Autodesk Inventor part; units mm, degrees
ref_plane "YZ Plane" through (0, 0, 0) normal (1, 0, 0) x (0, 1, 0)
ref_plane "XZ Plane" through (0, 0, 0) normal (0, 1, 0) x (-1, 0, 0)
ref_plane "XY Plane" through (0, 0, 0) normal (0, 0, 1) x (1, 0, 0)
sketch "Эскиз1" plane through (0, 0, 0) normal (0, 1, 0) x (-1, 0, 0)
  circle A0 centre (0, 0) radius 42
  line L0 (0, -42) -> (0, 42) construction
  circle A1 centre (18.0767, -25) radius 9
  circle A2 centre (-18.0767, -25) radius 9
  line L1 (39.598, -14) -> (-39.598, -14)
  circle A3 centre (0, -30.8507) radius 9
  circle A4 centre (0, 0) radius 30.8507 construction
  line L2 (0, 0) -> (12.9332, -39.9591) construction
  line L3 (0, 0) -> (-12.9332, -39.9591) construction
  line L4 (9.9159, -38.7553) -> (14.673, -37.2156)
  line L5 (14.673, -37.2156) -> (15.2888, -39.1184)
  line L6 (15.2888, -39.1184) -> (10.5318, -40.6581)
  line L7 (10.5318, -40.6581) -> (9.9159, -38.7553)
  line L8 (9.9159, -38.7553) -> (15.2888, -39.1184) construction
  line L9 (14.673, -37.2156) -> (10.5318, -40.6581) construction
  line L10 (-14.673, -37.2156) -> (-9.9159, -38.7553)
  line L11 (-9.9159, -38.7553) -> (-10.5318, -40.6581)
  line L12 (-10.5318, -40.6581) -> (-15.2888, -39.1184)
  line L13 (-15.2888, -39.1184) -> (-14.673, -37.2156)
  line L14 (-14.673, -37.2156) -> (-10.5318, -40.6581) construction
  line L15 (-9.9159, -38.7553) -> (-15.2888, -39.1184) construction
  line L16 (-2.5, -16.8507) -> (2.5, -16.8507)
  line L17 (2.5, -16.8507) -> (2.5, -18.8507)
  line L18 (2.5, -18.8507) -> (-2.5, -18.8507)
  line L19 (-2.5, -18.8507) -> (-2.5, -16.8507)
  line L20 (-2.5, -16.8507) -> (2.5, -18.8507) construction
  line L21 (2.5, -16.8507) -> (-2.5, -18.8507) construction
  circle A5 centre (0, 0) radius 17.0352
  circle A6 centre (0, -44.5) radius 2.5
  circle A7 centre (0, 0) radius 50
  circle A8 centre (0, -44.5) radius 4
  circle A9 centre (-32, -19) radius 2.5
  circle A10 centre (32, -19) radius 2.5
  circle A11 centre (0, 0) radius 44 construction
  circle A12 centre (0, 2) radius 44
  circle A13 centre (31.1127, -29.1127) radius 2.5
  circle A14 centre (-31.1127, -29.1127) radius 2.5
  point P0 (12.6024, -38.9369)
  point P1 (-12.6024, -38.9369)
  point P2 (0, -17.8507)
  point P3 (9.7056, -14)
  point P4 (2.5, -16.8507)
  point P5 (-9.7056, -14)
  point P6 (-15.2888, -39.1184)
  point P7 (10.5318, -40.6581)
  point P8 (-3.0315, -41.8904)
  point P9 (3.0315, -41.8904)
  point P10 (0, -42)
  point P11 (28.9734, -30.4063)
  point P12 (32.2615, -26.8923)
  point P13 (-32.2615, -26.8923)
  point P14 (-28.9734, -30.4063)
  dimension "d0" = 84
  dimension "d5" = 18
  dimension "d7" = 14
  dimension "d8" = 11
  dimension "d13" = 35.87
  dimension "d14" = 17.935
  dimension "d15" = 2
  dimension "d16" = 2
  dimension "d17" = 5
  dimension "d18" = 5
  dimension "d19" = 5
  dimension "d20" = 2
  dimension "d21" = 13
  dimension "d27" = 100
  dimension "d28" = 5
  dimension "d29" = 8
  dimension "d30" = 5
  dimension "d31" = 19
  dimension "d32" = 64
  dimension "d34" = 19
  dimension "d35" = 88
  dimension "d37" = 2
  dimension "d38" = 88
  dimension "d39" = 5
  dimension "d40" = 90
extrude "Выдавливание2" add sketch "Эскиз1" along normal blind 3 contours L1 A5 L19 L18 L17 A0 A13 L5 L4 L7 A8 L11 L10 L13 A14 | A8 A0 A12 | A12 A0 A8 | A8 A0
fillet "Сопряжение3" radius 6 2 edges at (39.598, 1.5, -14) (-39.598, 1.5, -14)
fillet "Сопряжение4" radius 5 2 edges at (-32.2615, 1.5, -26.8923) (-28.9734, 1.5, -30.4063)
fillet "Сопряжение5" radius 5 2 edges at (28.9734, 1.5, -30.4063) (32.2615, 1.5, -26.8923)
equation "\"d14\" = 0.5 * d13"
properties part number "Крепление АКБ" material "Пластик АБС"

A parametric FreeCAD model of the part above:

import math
import FreeCAD as App
import Part
import Sketcher


def edges_at(feature, points):
    """Names of the edges that pass closest to the given points."""
    edges = feature.Shape.Edges
    near = lambda p: min(range(len(edges)), key=lambda i: edges[i].distToShape(Part.Vertex(*p))[0])
    return sorted({f"Edge{near(p) + 1}" for p in points})

doc = App.newDocument("Part")
body = doc.addObject("PartDesign::Body", "Body")

# Sketch on XZ plane
sketch1 = body.newObject("Sketcher::SketchObject", "Sketch")
sketch1.AttachmentSupport = (doc.getObject("XZ_Plane"), [""])
sketch1.MapMode = "FlatFace"
sketch1.addGeometry([
    Part.LineSegment(App.Vector(9.706, -14, 0), App.Vector(39.598, -14, 0)),  # 0
    Part.ArcOfCircle(Part.Circle(App.Vector(0, 0, 0), App.Vector(0, 0, 1), 42), math.radians(-40), math.radians(-19)),  # 1
    Part.ArcOfCircle(Part.Circle(App.Vector(31.113, -29.113, 0), App.Vector(0, 0, 1), 2.5), math.radians(63), math.radians(211)),  # 2
    Part.ArcOfCircle(Part.Circle(App.Vector(0, 0, 0), App.Vector(0, 0, 1), 42), math.radians(-69), math.radians(-46)),  # 3
    Part.LineSegment(App.Vector(15.289, -39.118, 0), App.Vector(14.673, -37.216, 0)),  # 4
    Part.LineSegment(App.Vector(14.673, -37.216, 0), App.Vector(9.916, -38.755, 0)),  # 5
    Part.LineSegment(App.Vector(9.916, -38.755, 0), App.Vector(10.532, -40.658, 0)),  # 6
    Part.ArcOfCircle(Part.Circle(App.Vector(0, 0, 0), App.Vector(0, 0, 1), 42), math.radians(-85.86), math.radians(-75.48)),  # 7
    Part.ArcOfCircle(Part.Circle(App.Vector(0, -44.5, 0), App.Vector(0, 0, 1), 4), math.radians(40.63), math.radians(40.72)),  # 8
    Part.ArcOfCircle(Part.Circle(App.Vector(0, 2, 0), App.Vector(0, 0, 1), 44), math.radians(-93.96), math.radians(-86.04)),  # 9
    Part.ArcOfCircle(Part.Circle(App.Vector(0, -44.5, 0), App.Vector(0, 0, 1), 4), math.radians(139.28), math.radians(139.37)),  # 10
    Part.ArcOfCircle(Part.Circle(App.Vector(0, 0, 0), App.Vector(0, 0, 1), 42), math.radians(-104.52), math.radians(-94.14)),  # 11
    Part.LineSegment(App.Vector(-10.532, -40.658, 0), App.Vector(-9.916, -38.755, 0)),  # 12
    Part.LineSegment(App.Vector(-9.916, -38.755, 0), App.Vector(-14.673, -37.216, 0)),  # 13
    Part.LineSegment(App.Vector(-14.673, -37.216, 0), App.Vector(-15.289, -39.118, 0)),  # 14
    Part.ArcOfCircle(Part.Circle(App.Vector(0, 0, 0), App.Vector(0, 0, 1), 42), math.radians(-134), math.radians(-111)),  # 15
    Part.ArcOfCircle(Part.Circle(App.Vector(-31.113, -29.113, 0), App.Vector(0, 0, 1), 2.5), math.radians(-31), math.radians(117)),  # 16
    Part.ArcOfCircle(Part.Circle(App.Vector(0, 0, 0), App.Vector(0, 0, 1), 42), math.radians(-161), math.radians(-140)),  # 17
    Part.LineSegment(App.Vector(-39.598, -14, 0), App.Vector(-9.706, -14, 0)),  # 18
    Part.ArcOfCircle(Part.Circle(App.Vector(0, 0, 0), App.Vector(0, 0, 1), 17.035), math.radians(-125), math.radians(-98)),  # 19
    Part.LineSegment(App.Vector(-2.5, -16.851, 0), App.Vector(-2.5, -18.851, 0)),  # 20
    Part.LineSegment(App.Vector(-2.5, -18.851, 0), App.Vector(2.5, -18.851, 0)),  # 21
    Part.LineSegment(App.Vector(2.5, -18.851, 0), App.Vector(2.5, -16.851, 0)),  # 22
    Part.ArcOfCircle(Part.Circle(App.Vector(0, 0, 0), App.Vector(0, 0, 1), 17.035), math.radians(-82), math.radians(-55)),  # 23
    Part.Circle(App.Vector(32, -19, 0), App.Vector(0, 0, 1), 2.5),  # 24
    Part.Circle(App.Vector(18.077, -25, 0), App.Vector(0, 0, 1), 9),  # 25
    Part.Circle(App.Vector(0, -30.851, 0), App.Vector(0, 0, 1), 9),  # 26
    Part.Circle(App.Vector(-18.077, -25, 0), App.Vector(0, 0, 1), 9),  # 27
    Part.Circle(App.Vector(-32, -19, 0), App.Vector(0, 0, 1), 2.5),  # 28
], False)
sketch1.addConstraint([
    Sketcher.Constraint("Coincident", 0, 2, 1, 2),
    Sketcher.Constraint("Coincident", 1, 1, 2, 1),
    Sketcher.Constraint("Coincident", 2, 2, 3, 2),
    Sketcher.Constraint("Coincident", 3, 1, 4, 1),
    Sketcher.Constraint("Coincident", 4, 2, 5, 1),
    Sketcher.Constraint("Coincident", 5, 2, 6, 1),
    Sketcher.Constraint("Coincident", 6, 2, 7, 2),
    Sketcher.Constraint("Coincident", 7, 1, 8, 2),
    Sketcher.Constraint("Coincident", 8, 1, 9, 2),
    Sketcher.Constraint("Coincident", 9, 1, 10, 2),
    Sketcher.Constraint("Coincident", 10, 1, 11, 2),
    Sketcher.Constraint("Coincident", 11, 1, 12, 1),
    Sketcher.Constraint("Coincident", 12, 2, 13, 1),
    Sketcher.Constraint("Coincident", 13, 2, 14, 1),
    Sketcher.Constraint("Coincident", 14, 2, 15, 2),
    Sketcher.Constraint("Coincident", 15, 1, 16, 1),
    Sketcher.Constraint("Coincident", 16, 2, 17, 2),
    Sketcher.Constraint("Coincident", 17, 1, 18, 1),
    Sketcher.Constraint("Coincident", 18, 2, 19, 1),
    Sketcher.Constraint("Coincident", 19, 2, 20, 1),
    Sketcher.Constraint("Coincident", 20, 2, 21, 1),
    Sketcher.Constraint("Coincident", 21, 2, 22, 1),
    Sketcher.Constraint("Coincident", 22, 2, 23, 1),
    Sketcher.Constraint("Coincident", 23, 2, 0, 1),
    Sketcher.Constraint("Horizontal", 0),
    Sketcher.Constraint("Horizontal", 18),
    Sketcher.Constraint("Vertical", 20),
    Sketcher.Constraint("Horizontal", 21),
    Sketcher.Constraint("Vertical", 22),
    Sketcher.Constraint("Coincident", 1, 3, -1, 1),
    Sketcher.Constraint("Coincident", 3, 3, -1, 1),
    Sketcher.Constraint("Coincident", 7, 3, -1, 1),
    Sketcher.Constraint("Coincident", 11, 3, -1, 1),
    Sketcher.Constraint("Coincident", 15, 3, -1, 1),
    Sketcher.Constraint("Coincident", 17, 3, -1, 1),
    Sketcher.Constraint("Coincident", 19, 3, -1, 1),
    Sketcher.Constraint("Coincident", 23, 3, -1, 1),
    Sketcher.Constraint("Coincident", 10, 3, 8, 3),
    Sketcher.Constraint("Equal", 1, 3),
    Sketcher.Constraint("Equal", 3, 7),
    Sketcher.Constraint("Equal", 8, 10),
    Sketcher.Constraint("Equal", 7, 11),
    Sketcher.Constraint("Equal", 11, 15),
    Sketcher.Constraint("Equal", 2, 16),
    Sketcher.Constraint("Equal", 15, 17),
    Sketcher.Constraint("Equal", 19, 23),
    Sketcher.Constraint("Equal", 16, 24),
    Sketcher.Constraint("Equal", 25, 26),
    Sketcher.Constraint("Equal", 26, 27),
    Sketcher.Constraint("Equal", 24, 28),
    Sketcher.Constraint("Symmetric", 2, 3, 16, 3, -2),
    Sketcher.Constraint("Symmetric", 25, 3, 27, 3, -2),
    Sketcher.Constraint("Symmetric", 24, 3, 28, 3, -2),
    Sketcher.Constraint("Symmetric", 8, 1, 9, 1, -2),
    Sketcher.Constraint("Symmetric", 5, 2, 12, 2, -2),
    Sketcher.Constraint("Symmetric", 4, 2, 13, 2, -2),
    Sketcher.Constraint("PointOnObject", 26, 3, -2),
    Sketcher.Constraint("Perpendicular", 4, 5),
    Sketcher.Constraint("Perpendicular", 5, 6),
    Sketcher.Constraint("Perpendicular", 12, 13),
    Sketcher.Constraint("Perpendicular", 13, 14),
    Sketcher.Constraint("Horizontal", 0, 2, 17, 1),
    Sketcher.Constraint("Horizontal", 19, 2, 22, 2),
    Sketcher.Constraint("Equal", 4, 6),
    Sketcher.Constraint("Diameter", 24, 5.0),
    Sketcher.Constraint("Diameter", 25, 18.0),
    Sketcher.Constraint("Radius", 1, 42.0),
    Sketcher.Constraint("Radius", 8, 4.0),
    Sketcher.Constraint("Radius", 9, 44.0),
    Sketcher.Constraint("DistanceX", 21, 1, 21, 2, 5.0),
    Sketcher.Constraint("DistanceY", 20, 2, 20, 1, 2.0),
    Sketcher.Constraint("Distance", 4, 2.0),
    Sketcher.Constraint("Distance", 5, 5.0),
    Sketcher.Constraint("DistanceY", -1, 1, 9, 3, 2.0),
    Sketcher.Constraint("DistanceY", 24, 3, -1, 1, 19.0),
    Sketcher.Constraint("DistanceY", 0, 2, -1, 1, 14.0),
    Sketcher.Constraint("DistanceY", 25, 3, 0, 2, 11.0),
    Sketcher.Constraint("DistanceY", 26, 3, 19, 2, 14.0),
    Sketcher.Constraint("DistanceX", -1, 1, 24, 3, 32.0),
    Sketcher.Constraint("DistanceY", 8, 3, -1, 1, 44.5),
    Sketcher.Constraint("Radius", 19, 17.0352),
    Sketcher.Constraint("DistanceX", -1, 1, 4, 2, 14.673),
    Sketcher.Constraint("DistanceX", 25, 3, 2, 3, 13.036),
    Sketcher.Constraint("DistanceX", 2, 2, 1, 1, 3.288),
    Sketcher.Constraint("DistanceY", 2, 2, 1, 1, 3.514),
])
pad1 = body.newObject("PartDesign::Pad", "Pad")
pad1.Profile = sketch1
pad1.Length = 3
pad1.Reversed = True
doc.recompute()

fillet = body.newObject("PartDesign::Fillet", "Fillet")
fillet.Base = (pad1, edges_at(pad1, [(39.598, 1.5, -14), (-39.598, 1.5, -14)]))
fillet.Radius = 6
doc.recompute()

fillet2 = body.newObject("PartDesign::Fillet", "Fillet001")
fillet2.Base = (fillet, edges_at(fillet, [(-32.261, 1.5, -26.892), (-28.973, 1.5, -30.406)]))
fillet2.Radius = 5
doc.recompute()

fillet3 = body.newObject("PartDesign::Fillet", "Fillet002")
fillet3.Base = (fillet2, edges_at(fillet2, [(28.973, 1.5, -30.406), (32.261, 1.5, -26.892)]))
fillet3.Radius = 5

doc.recompute()
